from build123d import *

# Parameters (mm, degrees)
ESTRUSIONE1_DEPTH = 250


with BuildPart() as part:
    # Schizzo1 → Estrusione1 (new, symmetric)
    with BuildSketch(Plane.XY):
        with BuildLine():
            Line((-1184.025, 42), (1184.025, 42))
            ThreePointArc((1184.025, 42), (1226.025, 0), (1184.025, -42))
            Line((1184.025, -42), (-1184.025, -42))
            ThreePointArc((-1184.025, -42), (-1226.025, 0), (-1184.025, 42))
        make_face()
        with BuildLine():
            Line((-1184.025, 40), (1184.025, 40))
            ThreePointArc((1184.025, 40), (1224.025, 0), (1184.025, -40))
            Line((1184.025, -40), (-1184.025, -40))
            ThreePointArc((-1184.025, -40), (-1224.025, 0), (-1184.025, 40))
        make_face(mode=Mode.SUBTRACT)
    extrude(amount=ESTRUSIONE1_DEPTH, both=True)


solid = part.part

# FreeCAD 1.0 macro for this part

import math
import FreeCAD as App
import Part
import Sketcher

V = App.Vector
Q = App.Units.Quantity

doc = App.newDocument("Part")
body = doc.addObject("PartDesign::Body", "Body")

# Sketch on XY plane
sketch1 = doc.addObject("Sketcher::SketchObject", "Sketch")
body.addObject(sketch1)
sketch1.AttachmentSupport = (doc.XY_Plane, [""])
sketch1.MapMode = "FlatFace"
sketch1.addGeometry(Part.LineSegment(V(1184.025, 42, 0), V(-1184.025, 42, 0)), False)
sketch1.addGeometry(Part.ArcOfCircle(Part.Circle(V(-1184.025, 0, 0), V(0, 0, 1), 42), math.radians(90), math.radians(270)), False)
sketch1.addGeometry(Part.LineSegment(V(-1184.025, -42, 0), V(1184.025, -42, 0)), False)
sketch1.addGeometry(Part.ArcOfCircle(Part.Circle(V(1184.025, 0, 0), V(0, 0, 1), 42), math.radians(-90), math.radians(90)), False)
sketch1.addGeometry(Part.LineSegment(V(-1184.025, 40, 0), V(1184.025, 40, 0)), False)
sketch1.addGeometry(Part.ArcOfCircle(Part.Circle(V(1184.025, 0, 0), V(0, 0, 1), 40), math.radians(-90), math.radians(90)), False)
sketch1.addGeometry(Part.LineSegment(V(1184.025, -40, 0), V(-1184.025, -40, 0)), False)
sketch1.addGeometry(Part.ArcOfCircle(Part.Circle(V(-1184.025, 0, 0), V(0, 0, 1), 40), math.radians(90), math.radians(270)), False)
sketch1.addConstraint(Sketcher.Constraint("Tangent", 0, 2, 1, 1))
sketch1.addConstraint(Sketcher.Constraint("Tangent", 1, 2, 2, 1))
sketch1.addConstraint(Sketcher.Constraint("Tangent", 2, 2, 3, 1))
sketch1.addConstraint(Sketcher.Constraint("Tangent", 3, 2, 0, 1))
sketch1.addConstraint(Sketcher.Constraint("Tangent", 4, 2, 5, 2))
sketch1.addConstraint(Sketcher.Constraint("Tangent", 5, 1, 6, 1))
sketch1.addConstraint(Sketcher.Constraint("Tangent", 6, 2, 7, 2))
sketch1.addConstraint(Sketcher.Constraint("Tangent", 7, 1, 4, 1))
sketch1.addConstraint(Sketcher.Constraint("Horizontal", 0))
sketch1.addConstraint(Sketcher.Constraint("Horizontal", 2))
sketch1.addConstraint(Sketcher.Constraint("Horizontal", 4))
sketch1.addConstraint(Sketcher.Constraint("Horizontal", 6))
sketch1.addConstraint(Sketcher.Constraint("Coincident", 5, 3, 3, 3))
sketch1.addConstraint(Sketcher.Constraint("Symmetric", 1, 3, 3, 3, -1, 1))
sketch1.addConstraint(Sketcher.Constraint("Vertical", 7, 3, 0, 2))
sketch1.addConstraint(Sketcher.Constraint("Radius", 1, Q("42 mm")))
sketch1.addConstraint(Sketcher.Constraint("Radius", 5, Q("40 mm")))
sketch1.addConstraint(Sketcher.Constraint("DistanceX", 0, 2, 0, 1, Q("2368.05 mm")))
pad1 = doc.addObject("PartDesign::Pad", "Pad")
body.addObject(pad1)
pad1.Profile = sketch1
pad1.Length = 500
pad1.Midplane = True

doc.recompute()
